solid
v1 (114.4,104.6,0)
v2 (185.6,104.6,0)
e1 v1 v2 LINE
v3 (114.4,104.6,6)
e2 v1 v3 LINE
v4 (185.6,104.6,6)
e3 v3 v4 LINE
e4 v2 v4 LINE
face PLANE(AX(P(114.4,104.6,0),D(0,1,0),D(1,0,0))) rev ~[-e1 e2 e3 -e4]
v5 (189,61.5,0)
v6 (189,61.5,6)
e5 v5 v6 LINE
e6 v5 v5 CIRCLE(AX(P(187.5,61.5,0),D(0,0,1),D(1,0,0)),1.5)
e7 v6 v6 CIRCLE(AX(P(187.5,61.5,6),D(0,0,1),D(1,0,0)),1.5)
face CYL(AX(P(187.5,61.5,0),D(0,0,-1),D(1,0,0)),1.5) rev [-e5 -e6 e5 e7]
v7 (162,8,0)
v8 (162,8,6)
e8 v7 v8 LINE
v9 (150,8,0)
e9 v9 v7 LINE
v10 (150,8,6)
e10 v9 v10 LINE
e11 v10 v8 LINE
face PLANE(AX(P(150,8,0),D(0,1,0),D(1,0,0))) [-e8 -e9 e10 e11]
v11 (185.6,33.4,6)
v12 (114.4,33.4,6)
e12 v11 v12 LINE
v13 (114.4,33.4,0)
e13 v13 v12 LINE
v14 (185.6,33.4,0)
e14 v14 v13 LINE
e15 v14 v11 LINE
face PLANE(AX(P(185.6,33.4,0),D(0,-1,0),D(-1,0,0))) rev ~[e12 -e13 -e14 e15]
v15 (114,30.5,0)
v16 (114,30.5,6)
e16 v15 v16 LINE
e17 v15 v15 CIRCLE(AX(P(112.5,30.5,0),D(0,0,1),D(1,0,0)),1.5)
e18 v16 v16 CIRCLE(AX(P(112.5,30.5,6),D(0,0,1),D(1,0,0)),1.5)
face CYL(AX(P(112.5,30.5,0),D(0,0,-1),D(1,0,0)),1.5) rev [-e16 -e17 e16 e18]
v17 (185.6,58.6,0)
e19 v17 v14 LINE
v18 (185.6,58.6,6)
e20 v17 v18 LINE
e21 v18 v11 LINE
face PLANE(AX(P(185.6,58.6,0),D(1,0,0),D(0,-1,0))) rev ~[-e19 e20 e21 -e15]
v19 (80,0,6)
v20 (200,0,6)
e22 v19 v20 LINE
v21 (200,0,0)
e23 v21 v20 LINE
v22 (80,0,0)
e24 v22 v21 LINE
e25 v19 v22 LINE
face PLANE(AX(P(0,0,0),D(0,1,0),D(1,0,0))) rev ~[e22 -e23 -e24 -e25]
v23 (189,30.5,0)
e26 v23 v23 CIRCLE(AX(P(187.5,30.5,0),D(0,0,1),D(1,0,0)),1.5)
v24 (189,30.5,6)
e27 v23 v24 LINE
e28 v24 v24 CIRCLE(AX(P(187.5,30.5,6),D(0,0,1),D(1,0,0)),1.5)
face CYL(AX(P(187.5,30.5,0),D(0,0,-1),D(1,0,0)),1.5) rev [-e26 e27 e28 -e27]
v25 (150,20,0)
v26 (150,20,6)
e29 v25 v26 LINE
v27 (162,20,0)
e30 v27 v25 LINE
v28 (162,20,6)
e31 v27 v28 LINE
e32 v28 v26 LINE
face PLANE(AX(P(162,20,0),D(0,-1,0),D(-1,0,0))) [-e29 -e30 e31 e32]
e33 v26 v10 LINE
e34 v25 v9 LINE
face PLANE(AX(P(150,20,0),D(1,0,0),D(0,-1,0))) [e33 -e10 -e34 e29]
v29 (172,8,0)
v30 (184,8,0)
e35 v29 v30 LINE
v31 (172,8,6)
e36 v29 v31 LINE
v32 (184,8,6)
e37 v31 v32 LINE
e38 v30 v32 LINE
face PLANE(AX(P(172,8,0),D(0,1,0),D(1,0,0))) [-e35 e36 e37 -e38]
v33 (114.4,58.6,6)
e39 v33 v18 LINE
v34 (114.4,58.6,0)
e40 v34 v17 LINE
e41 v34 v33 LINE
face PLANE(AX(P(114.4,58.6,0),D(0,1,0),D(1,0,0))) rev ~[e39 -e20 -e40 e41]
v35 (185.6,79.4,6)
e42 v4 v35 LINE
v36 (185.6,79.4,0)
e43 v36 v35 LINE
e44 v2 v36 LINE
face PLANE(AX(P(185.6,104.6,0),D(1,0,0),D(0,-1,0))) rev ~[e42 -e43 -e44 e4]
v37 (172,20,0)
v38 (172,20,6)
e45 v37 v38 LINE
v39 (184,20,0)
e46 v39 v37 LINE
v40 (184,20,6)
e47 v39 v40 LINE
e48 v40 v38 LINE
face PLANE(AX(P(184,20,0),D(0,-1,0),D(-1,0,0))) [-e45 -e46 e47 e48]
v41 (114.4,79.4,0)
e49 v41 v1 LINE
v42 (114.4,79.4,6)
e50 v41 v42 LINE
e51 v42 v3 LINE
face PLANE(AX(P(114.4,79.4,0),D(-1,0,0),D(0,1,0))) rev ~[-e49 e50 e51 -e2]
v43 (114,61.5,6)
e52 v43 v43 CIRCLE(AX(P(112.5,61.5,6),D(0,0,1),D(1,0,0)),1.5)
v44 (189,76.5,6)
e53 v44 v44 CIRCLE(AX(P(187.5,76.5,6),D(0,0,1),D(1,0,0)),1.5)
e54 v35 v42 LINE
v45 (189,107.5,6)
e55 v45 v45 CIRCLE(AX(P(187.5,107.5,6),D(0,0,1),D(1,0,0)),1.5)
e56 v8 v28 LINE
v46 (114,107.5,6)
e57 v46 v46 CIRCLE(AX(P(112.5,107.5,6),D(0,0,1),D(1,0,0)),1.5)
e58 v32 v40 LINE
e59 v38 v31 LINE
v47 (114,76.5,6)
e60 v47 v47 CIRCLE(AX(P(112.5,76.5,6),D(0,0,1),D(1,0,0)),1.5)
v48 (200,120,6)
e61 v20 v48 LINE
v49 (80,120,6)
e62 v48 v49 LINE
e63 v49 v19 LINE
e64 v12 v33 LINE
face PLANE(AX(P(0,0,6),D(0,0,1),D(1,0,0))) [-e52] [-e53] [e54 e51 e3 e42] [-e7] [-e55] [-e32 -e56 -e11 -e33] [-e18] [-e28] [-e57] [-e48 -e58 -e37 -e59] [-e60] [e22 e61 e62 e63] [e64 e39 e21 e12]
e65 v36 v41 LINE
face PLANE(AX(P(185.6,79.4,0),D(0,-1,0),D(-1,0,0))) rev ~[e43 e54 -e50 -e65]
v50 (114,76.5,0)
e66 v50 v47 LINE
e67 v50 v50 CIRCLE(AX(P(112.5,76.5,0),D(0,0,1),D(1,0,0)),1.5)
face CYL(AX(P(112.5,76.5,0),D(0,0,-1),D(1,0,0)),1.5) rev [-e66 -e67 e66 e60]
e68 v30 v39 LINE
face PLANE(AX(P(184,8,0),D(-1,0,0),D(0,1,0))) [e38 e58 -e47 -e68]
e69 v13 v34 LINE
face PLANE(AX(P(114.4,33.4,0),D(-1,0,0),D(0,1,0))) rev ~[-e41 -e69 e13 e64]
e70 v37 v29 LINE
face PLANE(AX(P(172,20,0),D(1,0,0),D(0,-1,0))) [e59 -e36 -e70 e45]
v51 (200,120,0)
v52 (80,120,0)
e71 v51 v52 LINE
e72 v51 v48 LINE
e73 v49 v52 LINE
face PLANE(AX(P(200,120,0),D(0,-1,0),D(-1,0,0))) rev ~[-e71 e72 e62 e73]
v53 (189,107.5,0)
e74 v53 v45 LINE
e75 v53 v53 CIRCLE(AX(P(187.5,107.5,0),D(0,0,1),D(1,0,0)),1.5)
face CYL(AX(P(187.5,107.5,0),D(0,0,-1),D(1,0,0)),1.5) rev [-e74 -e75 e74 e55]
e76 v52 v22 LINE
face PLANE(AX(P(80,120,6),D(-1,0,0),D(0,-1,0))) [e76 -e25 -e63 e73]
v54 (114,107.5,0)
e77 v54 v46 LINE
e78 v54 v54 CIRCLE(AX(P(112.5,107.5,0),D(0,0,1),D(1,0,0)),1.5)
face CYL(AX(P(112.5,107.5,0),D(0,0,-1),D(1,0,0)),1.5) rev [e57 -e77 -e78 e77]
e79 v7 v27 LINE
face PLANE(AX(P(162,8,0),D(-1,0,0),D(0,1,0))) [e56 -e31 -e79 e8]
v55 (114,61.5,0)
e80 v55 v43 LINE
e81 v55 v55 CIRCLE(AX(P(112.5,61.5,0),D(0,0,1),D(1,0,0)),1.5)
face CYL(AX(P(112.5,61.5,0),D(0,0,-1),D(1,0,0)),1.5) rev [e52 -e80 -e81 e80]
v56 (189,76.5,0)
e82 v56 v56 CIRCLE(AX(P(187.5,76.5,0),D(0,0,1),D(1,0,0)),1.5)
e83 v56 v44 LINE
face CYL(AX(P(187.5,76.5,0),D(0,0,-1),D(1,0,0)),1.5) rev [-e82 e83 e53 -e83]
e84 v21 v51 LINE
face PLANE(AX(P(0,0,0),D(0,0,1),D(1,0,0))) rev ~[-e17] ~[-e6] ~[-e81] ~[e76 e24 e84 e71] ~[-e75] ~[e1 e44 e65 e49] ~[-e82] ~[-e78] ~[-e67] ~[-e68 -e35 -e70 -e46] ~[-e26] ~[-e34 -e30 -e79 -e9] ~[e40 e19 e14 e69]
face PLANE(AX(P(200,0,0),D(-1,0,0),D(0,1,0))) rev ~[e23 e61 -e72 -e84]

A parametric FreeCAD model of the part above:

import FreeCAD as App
import Part
import Sketcher
from FreeCAD import Vector
Q = App.Units.Quantity

doc = App.newDocument("Part")
body = doc.addObject("PartDesign::Body", "Body")

# Sketch on XY plane
sketch1 = doc.addObject("Sketcher::SketchObject", "Sketch")
body.addObject(sketch1)
sketch1.AttachmentSupport = (doc.XY_Plane, [""])
sketch1.MapMode = "FlatFace"
sketch1.addGeometry(Part.LineSegment(Vector(0, 120, 0), Vector(0, 0, 0)), False)
sketch1.addGeometry(Part.LineSegment(Vector(0, 0, 0), Vector(200, 0, 0)), False)
sketch1.addGeometry(Part.LineSegment(Vector(200, 0, 0), Vector(200, 120, 0)), False)
sketch1.addGeometry(Part.LineSegment(Vector(200, 120, 0), Vector(0, 120, 0)), False)
sketch1.addGeometry(Part.Circle(Vector(112.5, 30.5, 0), Vector(0, 0, 1), 1.5), False)
sketch1.addGeometry(Part.Circle(Vector(187.5, 30.5, 0), Vector(0, 0, 1), 1.5), False)
sketch1.addGeometry(Part.LineSegment(Vector(114.4, 33.4, 0), Vector(114.4, 58.6, 0)), False)
sketch1.addGeometry(Part.LineSegment(Vector(114.4, 58.6, 0), Vector(185.6, 58.6, 0)), False)
sketch1.addGeometry(Part.LineSegment(Vector(185.6, 58.6, 0), Vector(185.6, 33.4, 0)), False)
sketch1.addGeometry(Part.LineSegment(Vector(185.6, 33.4, 0), Vector(114.4, 33.4, 0)), False)
sketch1.addGeometry(Part.Circle(Vector(112.5, 61.5, 0), Vector(0, 0, 1), 1.5), False)
sketch1.addGeometry(Part.Circle(Vector(112.5, 76.5, 0), Vector(0, 0, 1), 1.5), False)
sketch1.addGeometry(Part.Circle(Vector(187.5, 61.5, 0), Vector(0, 0, 1), 1.5), False)
sketch1.addGeometry(Part.Circle(Vector(187.5, 76.5, 0), Vector(0, 0, 1), 1.5), False)
sketch1.addGeometry(Part.Circle(Vector(112.5, 107.5, 0), Vector(0, 0, 1), 1.5), False)
sketch1.addGeometry(Part.LineSegment(Vector(114.4, 79.4, 0), Vector(114.4, 104.6, 0)), False)
sketch1.addGeometry(Part.LineSegment(Vector(114.4, 104.6, 0), Vector(185.6, 104.6, 0)), False)
sketch1.addGeometry(Part.LineSegment(Vector(185.6, 104.6, 0), Vector(185.6, 79.4, 0)), False)
sketch1.addGeometry(Part.LineSegment(Vector(185.6, 79.4, 0), Vector(114.4, 79.4, 0)), False)
sketch1.addGeometry(Part.Circle(Vector(187.5, 107.5, 0), Vector(0, 0, 1), 1.5), False)
sketch1.addConstraint(Sketcher.Constraint("Coincident", 0, 2, 1, 1))
sketch1.addConstraint(Sketcher.Constraint("Coincident", 1, 2, 2, 1))
sketch1.addConstraint(Sketcher.Constraint("Coincident", 2, 2, 3, 1))
sketch1.addConstraint(Sketcher.Constraint("Coincident", 3, 2, 0, 1))
sketch1.addConstraint(Sketcher.Constraint("Coincident", 6, 2, 7, 1))
sketch1.addConstraint(Sketcher.Constraint("Coincident", 7, 2, 8, 1))
sketch1.addConstraint(Sketcher.Constraint("Coincident", 8, 2, 9, 1))
sketch1.addConstraint(Sketcher.Constraint("Coincident", 9, 2, 6, 1))
sketch1.addConstraint(Sketcher.Constraint("Coincident", 15, 2, 16, 1))
sketch1.addConstraint(Sketcher.Constraint("Coincident", 16, 2, 17, 1))
sketch1.addConstraint(Sketcher.Constraint("Coincident", 17, 2, 18, 1))
sketch1.addConstraint(Sketcher.Constraint("Coincident", 18, 2, 15, 1))
sketch1.addConstraint(Sketcher.Constraint("Vertical", 0))
sketch1.addConstraint(Sketcher.Constraint("Horizontal", 1))
sketch1.addConstraint(Sketcher.Constraint("Vertical", 2))
sketch1.addConstraint(Sketcher.Constraint("Horizontal", 3))
sketch1.addConstraint(Sketcher.Constraint("Vertical", 6))
sketch1.addConstraint(Sketcher.Constraint("Horizontal", 7))
sketch1.addConstraint(Sketcher.Constraint("Vertical", 8))
sketch1.addConstraint(Sketcher.Constraint("Horizontal", 9))
sketch1.addConstraint(Sketcher.Constraint("Vertical", 15))
sketch1.addConstraint(Sketcher.Constraint("Horizontal", 16))
sketch1.addConstraint(Sketcher.Constraint("Vertical", 17))
sketch1.addConstraint(Sketcher.Constraint("Horizontal", 18))
sketch1.addConstraint(Sketcher.Constraint("Coincident", 0, 2, -1, 1))
sketch1.addConstraint(Sketcher.Constraint("Equal", 4, 5))
sketch1.addConstraint(Sketcher.Constraint("Equal", 5, 10))
sketch1.addConstraint(Sketcher.Constraint("Equal", 10, 11))
sketch1.addConstraint(Sketcher.Constraint("Equal", 11, 12))
sketch1.addConstraint(Sketcher.Constraint("Equal", 12, 13))
sketch1.addConstraint(Sketcher.Constraint("Equal", 13, 14))
sketch1.addConstraint(Sketcher.Constraint("Equal", 14, 19))
sketch1.addConstraint(Sketcher.Constraint("Horizontal", 4, 3, 5, 3))
sketch1.addConstraint(Sketcher.Constraint("Horizontal", 10, 3, 12, 3))
sketch1.addConstraint(Sketcher.Constraint("Horizontal", 11, 3, 13, 3))
sketch1.addConstraint(Sketcher.Constraint("Horizontal", 14, 3, 19, 3))
sketch1.addConstraint(Sketcher.Constraint("Vertical", 4, 3, 10, 3))
sketch1.addConstraint(Sketcher.Constraint("Vertical", 10, 3, 11, 3))
sketch1.addConstraint(Sketcher.Constraint("Vertical", 5, 3, 12, 3))
sketch1.addConstraint(Sketcher.Constraint("Vertical", 12, 3, 13, 3))
sketch1.addConstraint(Sketcher.Constraint("Vertical", 11, 3, 14, 3))
sketch1.addConstraint(Sketcher.Constraint("Vertical", 13, 3, 19, 3))
sketch1.addConstraint(Sketcher.Constraint("Vertical", 9, 2, 15, 2))
sketch1.addConstraint(Sketcher.Constraint("Vertical", 8, 2, 16, 2))
sketch1.addConstraint(Sketcher.Constraint("Equal", 8, 15))
sketch1.addConstraint(Sketcher.Constraint("Diameter", 4, Q("3 mm")))
sketch1.addConstraint(Sketcher.Constraint("DistanceX", 1, 1, 1, 2, Q("200 mm")))
sketch1.addConstraint(Sketcher.Constraint("DistanceY", 0, 2, 0, 1, Q("120 mm")))
sketch1.addConstraint(Sketcher.Constraint("DistanceX", 4, 3, 5, 3, Q("75 mm")))
sketch1.addConstraint(Sketcher.Constraint("DistanceY", 4, 3, 10, 3, Q("31 mm")))
sketch1.addConstraint(Sketcher.Constraint("DistanceY", 11, 3, 14, 3, Q("31 mm")))
sketch1.addConstraint(Sketcher.Constraint("DistanceX", 7, 1, 7, 2, Q("71.2 mm")))
sketch1.addConstraint(Sketcher.Constraint("DistanceY", 6, 1, 6, 2, Q("25.2 mm")))
sketch1.addConstraint(Sketcher.Constraint("DistanceY", 10, 3, 11, 3, Q("15 mm")))
sketch1.addConstraint(Sketcher.Constraint("DistanceY", 6, 2, 15, 2, Q("46 mm")))
sketch1.addConstraint(Sketcher.Constraint("DistanceX", -1, 1, 4, 3, Q("112.5 mm")))
sketch1.addConstraint(Sketcher.Constraint("DistanceY", -1, 1, 4, 3, Q("30.5 mm")))
sketch1.addConstraint(Sketcher.Constraint("DistanceX", -1, 1, 6, 2, Q("114.4 mm")))
sketch1.addConstraint(Sketcher.Constraint("DistanceY", -1, 1, 6, 2, Q("58.6 mm")))
pad1 = doc.addObject("PartDesign::Pad", "Pad")
body.addObject(pad1)
pad1.Profile = sketch1
pad1.Length = 6

# Sketch on XY plane
sketch2 = doc.addObject("Sketcher::SketchObject", "Sketch001")
body.addObject(sketch2)
sketch2.AttachmentSupport = (doc.XY_Plane, [""])
sketch2.MapMode = "FlatFace"
sketch2.addGeometry(Part.Circle(Vector(112.5, 107.5, 0), Vector(0, 0, 1), 1.5), False)
sketch2.addGeometry(Part.Circle(Vector(112.5, 61.5, 0), Vector(0, 0, 1), 1.5), False)
sketch2.addGeometry(Part.Circle(Vector(187.5, 61.5, 0), Vector(0, 0, 1), 1.5), False)
sketch2.addGeometry(Part.Circle(Vector(112.5, 30.5, 0), Vector(0, 0, 1), 1.5), False)
sketch2.addGeometry(Part.Circle(Vector(187.5, 30.5, 0), Vector(0, 0, 1), 1.5), False)
sketch2.addGeometry(Part.Circle(Vector(187.5, 107.5, 0), Vector(0, 0, 1), 1.5), False)
sketch2.addGeometry(Part.Circle(Vector(112.5, 76.5, 0), Vector(0, 0, 1), 1.5), False)
sketch2.addGeometry(Part.Circle(Vector(187.5, 76.5, 0), Vector(0, 0, 1), 1.5), False)
sketch2.addGeometry(Part.LineSegment(Vector(185.6, 104.6, 0), Vector(114.4, 104.6, 0)), False)
sketch2.addGeometry(Part.LineSegment(Vector(114.4, 104.6, 0), Vector(114.4, 79.4, 0)), False)
sketch2.addGeometry(Part.LineSegment(Vector(114.4, 79.4, 0), Vector(185.6, 79.4, 0)), False)
sketch2.addGeometry(Part.LineSegment(Vector(185.6, 79.4, 0), Vector(185.6, 104.6, 0)), False)
sketch2.addGeometry(Part.LineSegment(Vector(185.6, 58.6, 0), Vector(114.4, 58.6, 0)), False)
sketch2.addGeometry(Part.LineSegment(Vector(114.4, 58.6, 0), Vector(114.4, 33.4, 0)), False)
sketch2.addGeometry(Part.LineSegment(Vector(114.4, 33.4, 0), Vector(185.6, 33.4, 0)), False)
sketch2.addGeometry(Part.LineSegment(Vector(185.6, 33.4, 0), Vector(185.6, 58.6, 0)), False)
sketch2.addConstraint(Sketcher.Constraint("Coincident", 8, 2, 9, 1))
sketch2.addConstraint(Sketcher.Constraint("Coincident", 9, 2, 10, 1))
sketch2.addConstraint(Sketcher.Constraint("Coincident", 10, 2, 11, 1))
sketch2.addConstraint(Sketcher.Constraint("Coincident", 11, 2, 8, 1))
sketch2.addConstraint(Sketcher.Constraint("Coincident", 12, 2, 13, 1))
sketch2.addConstraint(Sketcher.Constraint("Coincident", 13, 2, 14, 1))
sketch2.addConstraint(Sketcher.Constraint("Coincident", 14, 2, 15, 1))
sketch2.addConstraint(Sketcher.Constraint("Coincident", 15, 2, 12, 1))
sketch2.addConstraint(Sketcher.Constraint("Horizontal", 8))
sketch2.addConstraint(Sketcher.Constraint("Vertical", 9))
sketch2.addConstraint(Sketcher.Constraint("Horizontal", 10))
sketch2.addConstraint(Sketcher.Constraint("Vertical", 11))
sketch2.addConstraint(Sketcher.Constraint("Horizontal", 12))
sketch2.addConstraint(Sketcher.Constraint("Vertical", 13))
sketch2.addConstraint(Sketcher.Constraint("Horizontal", 14))
sketch2.addConstraint(Sketcher.Constraint("Vertical", 15))
sketch2.addConstraint(Sketcher.Constraint("Equal", 0, 1))
sketch2.addConstraint(Sketcher.Constraint("Equal", 1, 2))
sketch2.addConstraint(Sketcher.Constraint("Equal", 2, 3))
sketch2.addConstraint(Sketcher.Constraint("Equal", 3, 4))
sketch2.addConstraint(Sketcher.Constraint("Equal", 4, 5))
sketch2.addConstraint(Sketcher.Constraint("Equal", 5, 6))
sketch2.addConstraint(Sketcher.Constraint("Equal", 6, 7))
sketch2.addConstraint(Sketcher.Constraint("Horizontal", 1, 3, 2, 3))
sketch2.addConstraint(Sketcher.Constraint("Horizontal", 3, 3, 4, 3))
sketch2.addConstraint(Sketcher.Constraint("Horizontal", 0, 3, 5, 3))
sketch2.addConstraint(Sketcher.Constraint("Horizontal", 6, 3, 7, 3))
sketch2.addConstraint(Sketcher.Constraint("Vertical", 0, 3, 1, 3))
sketch2.addConstraint(Sketcher.Constraint("Vertical", 1, 3, 3, 3))
sketch2.addConstraint(Sketcher.Constraint("Vertical", 2, 3, 4, 3))
sketch2.addConstraint(Sketcher.Constraint("Vertical", 4, 3, 5, 3))
sketch2.addConstraint(Sketcher.Constraint("Vertical", 3, 3, 6, 3))
sketch2.addConstraint(Sketcher.Constraint("Vertical", 5, 3, 7, 3))
sketch2.addConstraint(Sketcher.Constraint("Vertical", 9, 2, 12, 2))
sketch2.addConstraint(Sketcher.Constraint("Vertical", 11, 2, 14, 2))
sketch2.addConstraint(Sketcher.Constraint("Equal", 11, 13))
sketch2.addConstraint(Sketcher.Constraint("Diameter", 0, Q("3 mm")))
sketch2.addConstraint(Sketcher.Constraint("DistanceX", 1, 3, 2, 3, Q("75 mm")))
sketch2.addConstraint(Sketcher.Constraint("DistanceY", 3, 3, 1, 3, Q("31 mm")))
sketch2.addConstraint(Sketcher.Constraint("DistanceY", 6, 3, 0, 3, Q("31 mm")))
sketch2.addConstraint(Sketcher.Constraint("DistanceX", 8, 2, 8, 1, Q("71.2 mm")))
sketch2.addConstraint(Sketcher.Constraint("DistanceY", 9, 2, 9, 1, Q("25.2 mm")))
sketch2.addConstraint(Sketcher.Constraint("DistanceY", 1, 3, 0, 3, Q("46 mm")))
sketch2.addConstraint(Sketcher.Constraint("DistanceY", 12, 2, 8, 2, Q("46 mm")))
sketch2.addConstraint(Sketcher.Constraint("DistanceX", -1, 1, 0, 3, Q("112.5 mm")))
sketch2.addConstraint(Sketcher.Constraint("DistanceY", -1, 1, 0, 3, Q("107.5 mm")))
sketch2.addConstraint(Sketcher.Constraint("DistanceX", -1, 1, 8, 2, Q("114.4 mm")))
sketch2.addConstraint(Sketcher.Constraint("DistanceY", -1, 1, 8, 2, Q("104.6 mm")))
pocket1 = doc.addObject("PartDesign::Pocket", "Pocket")
body.addObject(pocket1)
pocket1.Profile = sketch2
pocket1.Length = 75
pocket1.Reversed = True

# Sketch on XY plane
sketch3 = doc.addObject("Sketcher::SketchObject", "Sketch002")
body.addObject(sketch3)
sketch3.AttachmentSupport = (doc.XY_Plane, [""])
sketch3.MapMode = "FlatFace"
sketch3.addGeometry(Part.LineSegment(Vector(162, 8, 0), Vector(150, 8, 0)), False)
sketch3.addGeometry(Part.LineSegment(Vector(150, 8, 0), Vector(150, 20, 0)), False)
sketch3.addGeometry(Part.LineSegment(Vector(150, 20, 0), Vector(162, 20, 0)), False)
sketch3.addGeometry(Part.LineSegment(Vector(162, 20, 0), Vector(162, 8, 0)), False)
sketch3.addGeometry(Part.LineSegment(Vector(184, 8, 0), Vector(172, 8, 0)), False)
sketch3.addGeometry(Part.LineSegment(Vector(172, 8, 0), Vector(172, 20, 0)), False)
sketch3.addGeometry(Part.LineSegment(Vector(172, 20, 0), Vector(184, 20, 0)), False)
sketch3.addGeometry(Part.LineSegment(Vector(184, 20, 0), Vector(184, 8, 0)), False)
sketch3.addConstraint(Sketcher.Constraint("Coincident", 0, 2, 1, 1))
sketch3.addConstraint(Sketcher.Constraint("Coincident", 1, 2, 2, 1))
sketch3.addConstraint(Sketcher.Constraint("Coincident", 2, 2, 3, 1))
sketch3.addConstraint(Sketcher.Constraint("Coincident", 3, 2, 0, 1))
sketch3.addConstraint(Sketcher.Constraint("Coincident", 4, 2, 5, 1))
sketch3.addConstraint(Sketcher.Constraint("Coincident", 5, 2, 6, 1))
sketch3.addConstraint(Sketcher.Constraint("Coincident", 6, 2, 7, 1))
sketch3.addConstraint(Sketcher.Constraint("Coincident", 7, 2, 4, 1))
sketch3.addConstraint(Sketcher.Constraint("Horizontal", 0))
sketch3.addConstraint(Sketcher.Constraint("Vertical", 1))
sketch3.addConstraint(Sketcher.Constraint("Horizontal", 2))
sketch3.addConstraint(Sketcher.Constraint("Vertical", 3))
sketch3.addConstraint(Sketcher.Constraint("Horizontal", 4))
sketch3.addConstraint(Sketcher.Constraint("Vertical", 5))
sketch3.addConstraint(Sketcher.Constraint("Horizontal", 6))
sketch3.addConstraint(Sketcher.Constraint("Vertical", 7))
sketch3.addConstraint(Sketcher.Constraint("Horizontal", 3, 2, 4, 2))
sketch3.addConstraint(Sketcher.Constraint("Horizontal", 2, 2, 5, 2))
sketch3.addConstraint(Sketcher.Constraint("Equal", 2, 4))
sketch3.addConstraint(Sketcher.Constraint("Equal", 6, 1))
sketch3.addConstraint(Sketcher.Constraint("DistanceX", 0, 2, 0, 1, Q("12 mm")))
sketch3.addConstraint(Sketcher.Constraint("DistanceX", -1, 1, 0, 2, Q("150 mm")))
sketch3.addConstraint(Sketcher.Constraint("DistanceX", 3, 2, 4, 2, Q("10 mm")))
sketch3.addConstraint(Sketcher.Constraint("DistanceY", -1, 1, 0, 2, Q("8 mm")))
pocket2 = doc.addObject("PartDesign::Pocket", "Pocket001")
body.addObject(pocket2)
pocket2.Profile = sketch3
pocket2.Length = 6
pocket2.Reversed = True

# Sketch on XY plane
sketch4 = doc.addObject("Sketcher::SketchObject", "Sketch003")
body.addObject(sketch4)
sketch4.AttachmentSupport = (doc.XY_Plane, [""])
sketch4.MapMode = "FlatFace"
sketch4.AttachmentOffset = App.Placement(Vector(0, 0, 6), App.Rotation())
sketch4.addGeometry(Part.LineSegment(Vector(0, 120, 0), Vector(0, 0, 0)), False)
sketch4.addGeometry(Part.LineSegment(Vector(0, 0, 0), Vector(80, 0, 0)), False)
sketch4.addGeometry(Part.LineSegment(Vector(80, 0, 0), Vector(80, 120, 0)), False)
sketch4.addGeometry(Part.LineSegment(Vector(80, 120, 0), Vector(0, 120, 0)), False)
sketch4.addConstraint(Sketcher.Constraint("Coincident", 0, 2, 1, 1))
sketch4.addConstraint(Sketcher.Constraint("Coincident", 1, 2, 2, 1))
sketch4.addConstraint(Sketcher.Constraint("Coincident", 2, 2, 3, 1))
sketch4.addConstraint(Sketcher.Constraint("Coincident", 3, 2, 0, 1))
sketch4.addConstraint(Sketcher.Constraint("Vertical", 0))
sketch4.addConstraint(Sketcher.Constraint("Horizontal", 1))
sketch4.addConstraint(Sketcher.Constraint("Vertical", 2))
sketch4.addConstraint(Sketcher.Constraint("Horizontal", 3))
sketch4.addConstraint(Sketcher.Constraint("Coincident", 0, 2, -1, 1))
sketch4.addConstraint(Sketcher.Constraint("DistanceX", 1, 1, 1, 2, Q("80 mm")))
sketch4.addConstraint(Sketcher.Constraint("DistanceY", 0, 2, 0, 1, Q("120 mm")))
pocket3 = doc.addObject("PartDesign::Pocket", "Pocket002")
body.addObject(pocket3)
pocket3.Profile = sketch4
pocket3.Length = 10

doc.recompute()
